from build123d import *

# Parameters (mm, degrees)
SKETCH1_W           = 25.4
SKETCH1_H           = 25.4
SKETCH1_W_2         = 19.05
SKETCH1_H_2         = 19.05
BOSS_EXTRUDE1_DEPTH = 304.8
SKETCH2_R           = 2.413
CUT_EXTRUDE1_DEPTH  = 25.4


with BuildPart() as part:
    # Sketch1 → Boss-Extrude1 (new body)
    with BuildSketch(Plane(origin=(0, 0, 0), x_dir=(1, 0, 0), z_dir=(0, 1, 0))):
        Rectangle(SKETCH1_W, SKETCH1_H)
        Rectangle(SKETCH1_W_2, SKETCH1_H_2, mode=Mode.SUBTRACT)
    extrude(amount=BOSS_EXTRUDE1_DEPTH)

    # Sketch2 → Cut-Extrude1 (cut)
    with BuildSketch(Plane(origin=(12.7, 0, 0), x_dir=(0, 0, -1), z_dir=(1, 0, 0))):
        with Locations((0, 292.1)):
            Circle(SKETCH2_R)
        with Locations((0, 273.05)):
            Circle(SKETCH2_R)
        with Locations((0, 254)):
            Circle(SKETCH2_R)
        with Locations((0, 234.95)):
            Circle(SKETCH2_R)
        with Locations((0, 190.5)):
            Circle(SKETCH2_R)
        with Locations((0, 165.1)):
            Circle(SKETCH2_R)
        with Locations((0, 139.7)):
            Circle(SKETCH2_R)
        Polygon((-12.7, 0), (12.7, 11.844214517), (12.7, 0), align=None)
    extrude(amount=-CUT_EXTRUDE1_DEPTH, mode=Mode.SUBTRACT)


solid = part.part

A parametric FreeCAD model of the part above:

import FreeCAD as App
import Part
import Sketcher
Q = App.Units.Quantity

doc = App.newDocument("Part")
params = doc.addObject("Spreadsheet::Sheet", "Params")
for row, (alias, value) in enumerate([
    ("sketch1_width", "1 in"),
    ("sketch1_width2", "0.75 in"),
    ("pad1_length", "12 in"),
    ("sketch2_diameter", "0.19 in"),
    ("sketch2_height", "1 in"),
    ("pocket1_length", "1 in"),
], start=1):
    params.set(f"A{row}", alias)
    params.set(f"B{row}", "=" + value)
    params.setAlias(f"B{row}", alias)

body = doc.addObject("PartDesign::Body", "Body")

sketch1 = doc.addObject("Sketcher::SketchObject", "Sketch")
body.addObject(sketch1)
sketch1.AttachmentSupport = (doc.XZ_Plane, [""])
sketch1.MapMode = "FlatFace"
sketch1.addGeometry([
    Part.LineSegment(App.Vector(-13, -13, 0), App.Vector(-13, 13, 0)),
    Part.LineSegment(App.Vector(-13, 13, 0), App.Vector(13, 13, 0)),
    Part.LineSegment(App.Vector(13, 13, 0), App.Vector(13, -13, 0)),
    Part.LineSegment(App.Vector(13, -13, 0), App.Vector(-13, -13, 0)),
    Part.LineSegment(App.Vector(10, 10, 0), App.Vector(-10, 10, 0)),
    Part.LineSegment(App.Vector(-10, 10, 0), App.Vector(-10, -10, 0)),
    Part.LineSegment(App.Vector(-10, -10, 0), App.Vector(10, -10, 0)),
    Part.LineSegment(App.Vector(10, -10, 0), App.Vector(10, 10, 0)),
], False)
sketch1.addConstraint([
    Sketcher.Constraint("Coincident", 0, 2, 1, 1),
    Sketcher.Constraint("Coincident", 1, 2, 2, 1),
    Sketcher.Constraint("Coincident", 2, 2, 3, 1),
    Sketcher.Constraint("Coincident", 3, 2, 0, 1),
    Sketcher.Constraint("Coincident", 4, 2, 5, 1),
    Sketcher.Constraint("Coincident", 5, 2, 6, 1),
    Sketcher.Constraint("Coincident", 6, 2, 7, 1),
    Sketcher.Constraint("Coincident", 7, 2, 4, 1),
    Sketcher.Constraint("Vertical", 0),
    Sketcher.Constraint("Horizontal", 1),
    Sketcher.Constraint("Vertical", 2),
    Sketcher.Constraint("Horizontal", 3),
    Sketcher.Constraint("Horizontal", 4),
    Sketcher.Constraint("Vertical", 5),
    Sketcher.Constraint("Horizontal", 6),
    Sketcher.Constraint("Vertical", 7),
    Sketcher.Constraint("Symmetric", 0, 2, 2, 2, -1, 1),
    Sketcher.Constraint("Symmetric", 4, 2, 6, 2, -1, 1),
    Sketcher.Constraint("Equal", 3, 0),
    Sketcher.Constraint("Equal", 6, 5),
    Sketcher.Constraint("DistanceX", 1, 1, 1, 2, Q("1 in")),
    Sketcher.Constraint("DistanceX", 4, 2, 4, 1, Q("0.75 in")),
])
sketch1.setExpression("Constraints[20]", "Params.sketch1_width")
sketch1.setExpression("Constraints[21]", "Params.sketch1_width2")
pad1 = doc.addObject("PartDesign::Pad", "Pad")
body.addObject(pad1)
pad1.Profile = sketch1
pad1.setExpression("Length", "Params.pad1_length")
pad1.Reversed = True

sketch2 = doc.addObject("Sketcher::SketchObject", "Sketch001")
body.addObject(sketch2)
sketch2.AttachmentSupport = (doc.YZ_Plane, [""])
sketch2.MapMode = "FlatFace"
sketch2.AttachmentOffset = App.Placement(App.Vector(0, 0, 0.5 * 25.4), App.Rotation())
sketch2.addGeometry([
    Part.Circle(App.Vector(292.1, 0, 0), App.Vector(0, 0, 1), 2.4),
    Part.Circle(App.Vector(273.1, 0, 0), App.Vector(0, 0, 1), 2.4),
    Part.Circle(App.Vector(254, 0, 0), App.Vector(0, 0, 1), 2.4),
    Part.Circle(App.Vector(234.9, 0, 0), App.Vector(0, 0, 1), 2.4),
    Part.Circle(App.Vector(190.5, 0, 0), App.Vector(0, 0, 1), 2.4),
    Part.Circle(App.Vector(165.1, 0, 0), App.Vector(0, 0, 1), 2.4),
    Part.Circle(App.Vector(139.7, 0, 0), App.Vector(0, 0, 1), 2.4),
    Part.LineSegment(App.Vector(11.8, -12.7, 0), App.Vector(0, 12.7, 0)),
    Part.LineSegment(App.Vector(0, 12.7, 0), App.Vector(0, -12.7, 0)),
    Part.LineSegment(App.Vector(0, -12.7, 0), App.Vector(11.8, -12.7, 0)),
], False)
sketch2.addConstraint([
    Sketcher.Constraint("Coincident", 7, 2, 8, 1),
    Sketcher.Constraint("Coincident", 8, 2, 9, 1),
    Sketcher.Constraint("Coincident", 9, 2, 7, 1),
    Sketcher.Constraint("Vertical", 8),
    Sketcher.Constraint("Horizontal", 9),
    Sketcher.Constraint("Equal", 0, 1),
    Sketcher.Constraint("Equal", 1, 2),
    Sketcher.Constraint("Equal", 2, 3),
    Sketcher.Constraint("Equal", 3, 4),
    Sketcher.Constraint("Equal", 4, 5),
    Sketcher.Constraint("Equal", 5, 6),
    Sketcher.Constraint("Symmetric", 7, 2, 8, 2, -1, 1),
    Sketcher.Constraint("PointOnObject", 0, 3, -1),
    Sketcher.Constraint("PointOnObject", 1, 3, -1),
    Sketcher.Constraint("PointOnObject", 2, 3, -1),
    Sketcher.Constraint("PointOnObject", 3, 3, -1),
    Sketcher.Constraint("PointOnObject", 4, 3, -1),
    Sketcher.Constraint("PointOnObject", 5, 3, -1),
    Sketcher.Constraint("PointOnObject", 6, 3, -1),
    Sketcher.Constraint("Diameter", 0, Q("0.19 in")),
    Sketcher.Constraint("DistanceY", 8, 2, 8, 1, Q("1 in")),
    Sketcher.Constraint("DistanceX", -1, 1, 2, 3, Q("10 in")),
    Sketcher.Constraint("Angle", 7, Q("115 deg")),
    Sketcher.Constraint("DistanceX", 4, 3, 0, 3, Q("4 in")),
    Sketcher.Constraint("DistanceX", 5, 3, 4, 3, Q("1 in")),
    Sketcher.Constraint("DistanceX", 6, 3, 5, 3, Q("1 in")),
    Sketcher.Constraint("DistanceX", -1, 1, 0, 3, Q("11.5 in")),
    Sketcher.Constraint("DistanceX", 3, 3, 1, 3, Q("1.5 in")),
    Sketcher.Constraint("DistanceX", -1, 1, 1, 3, Q("10.75 in")),
])
sketch2.setExpression("Constraints[19]", "Params.sketch2_diameter")
sketch2.setExpression("Constraints[20]", "Params.sketch2_height")
pocket1 = doc.addObject("PartDesign::Pocket", "Pocket")
body.addObject(pocket1)
pocket1.Profile = sketch2
pocket1.setExpression("Length", "Params.pocket1_length")

doc.recompute()
